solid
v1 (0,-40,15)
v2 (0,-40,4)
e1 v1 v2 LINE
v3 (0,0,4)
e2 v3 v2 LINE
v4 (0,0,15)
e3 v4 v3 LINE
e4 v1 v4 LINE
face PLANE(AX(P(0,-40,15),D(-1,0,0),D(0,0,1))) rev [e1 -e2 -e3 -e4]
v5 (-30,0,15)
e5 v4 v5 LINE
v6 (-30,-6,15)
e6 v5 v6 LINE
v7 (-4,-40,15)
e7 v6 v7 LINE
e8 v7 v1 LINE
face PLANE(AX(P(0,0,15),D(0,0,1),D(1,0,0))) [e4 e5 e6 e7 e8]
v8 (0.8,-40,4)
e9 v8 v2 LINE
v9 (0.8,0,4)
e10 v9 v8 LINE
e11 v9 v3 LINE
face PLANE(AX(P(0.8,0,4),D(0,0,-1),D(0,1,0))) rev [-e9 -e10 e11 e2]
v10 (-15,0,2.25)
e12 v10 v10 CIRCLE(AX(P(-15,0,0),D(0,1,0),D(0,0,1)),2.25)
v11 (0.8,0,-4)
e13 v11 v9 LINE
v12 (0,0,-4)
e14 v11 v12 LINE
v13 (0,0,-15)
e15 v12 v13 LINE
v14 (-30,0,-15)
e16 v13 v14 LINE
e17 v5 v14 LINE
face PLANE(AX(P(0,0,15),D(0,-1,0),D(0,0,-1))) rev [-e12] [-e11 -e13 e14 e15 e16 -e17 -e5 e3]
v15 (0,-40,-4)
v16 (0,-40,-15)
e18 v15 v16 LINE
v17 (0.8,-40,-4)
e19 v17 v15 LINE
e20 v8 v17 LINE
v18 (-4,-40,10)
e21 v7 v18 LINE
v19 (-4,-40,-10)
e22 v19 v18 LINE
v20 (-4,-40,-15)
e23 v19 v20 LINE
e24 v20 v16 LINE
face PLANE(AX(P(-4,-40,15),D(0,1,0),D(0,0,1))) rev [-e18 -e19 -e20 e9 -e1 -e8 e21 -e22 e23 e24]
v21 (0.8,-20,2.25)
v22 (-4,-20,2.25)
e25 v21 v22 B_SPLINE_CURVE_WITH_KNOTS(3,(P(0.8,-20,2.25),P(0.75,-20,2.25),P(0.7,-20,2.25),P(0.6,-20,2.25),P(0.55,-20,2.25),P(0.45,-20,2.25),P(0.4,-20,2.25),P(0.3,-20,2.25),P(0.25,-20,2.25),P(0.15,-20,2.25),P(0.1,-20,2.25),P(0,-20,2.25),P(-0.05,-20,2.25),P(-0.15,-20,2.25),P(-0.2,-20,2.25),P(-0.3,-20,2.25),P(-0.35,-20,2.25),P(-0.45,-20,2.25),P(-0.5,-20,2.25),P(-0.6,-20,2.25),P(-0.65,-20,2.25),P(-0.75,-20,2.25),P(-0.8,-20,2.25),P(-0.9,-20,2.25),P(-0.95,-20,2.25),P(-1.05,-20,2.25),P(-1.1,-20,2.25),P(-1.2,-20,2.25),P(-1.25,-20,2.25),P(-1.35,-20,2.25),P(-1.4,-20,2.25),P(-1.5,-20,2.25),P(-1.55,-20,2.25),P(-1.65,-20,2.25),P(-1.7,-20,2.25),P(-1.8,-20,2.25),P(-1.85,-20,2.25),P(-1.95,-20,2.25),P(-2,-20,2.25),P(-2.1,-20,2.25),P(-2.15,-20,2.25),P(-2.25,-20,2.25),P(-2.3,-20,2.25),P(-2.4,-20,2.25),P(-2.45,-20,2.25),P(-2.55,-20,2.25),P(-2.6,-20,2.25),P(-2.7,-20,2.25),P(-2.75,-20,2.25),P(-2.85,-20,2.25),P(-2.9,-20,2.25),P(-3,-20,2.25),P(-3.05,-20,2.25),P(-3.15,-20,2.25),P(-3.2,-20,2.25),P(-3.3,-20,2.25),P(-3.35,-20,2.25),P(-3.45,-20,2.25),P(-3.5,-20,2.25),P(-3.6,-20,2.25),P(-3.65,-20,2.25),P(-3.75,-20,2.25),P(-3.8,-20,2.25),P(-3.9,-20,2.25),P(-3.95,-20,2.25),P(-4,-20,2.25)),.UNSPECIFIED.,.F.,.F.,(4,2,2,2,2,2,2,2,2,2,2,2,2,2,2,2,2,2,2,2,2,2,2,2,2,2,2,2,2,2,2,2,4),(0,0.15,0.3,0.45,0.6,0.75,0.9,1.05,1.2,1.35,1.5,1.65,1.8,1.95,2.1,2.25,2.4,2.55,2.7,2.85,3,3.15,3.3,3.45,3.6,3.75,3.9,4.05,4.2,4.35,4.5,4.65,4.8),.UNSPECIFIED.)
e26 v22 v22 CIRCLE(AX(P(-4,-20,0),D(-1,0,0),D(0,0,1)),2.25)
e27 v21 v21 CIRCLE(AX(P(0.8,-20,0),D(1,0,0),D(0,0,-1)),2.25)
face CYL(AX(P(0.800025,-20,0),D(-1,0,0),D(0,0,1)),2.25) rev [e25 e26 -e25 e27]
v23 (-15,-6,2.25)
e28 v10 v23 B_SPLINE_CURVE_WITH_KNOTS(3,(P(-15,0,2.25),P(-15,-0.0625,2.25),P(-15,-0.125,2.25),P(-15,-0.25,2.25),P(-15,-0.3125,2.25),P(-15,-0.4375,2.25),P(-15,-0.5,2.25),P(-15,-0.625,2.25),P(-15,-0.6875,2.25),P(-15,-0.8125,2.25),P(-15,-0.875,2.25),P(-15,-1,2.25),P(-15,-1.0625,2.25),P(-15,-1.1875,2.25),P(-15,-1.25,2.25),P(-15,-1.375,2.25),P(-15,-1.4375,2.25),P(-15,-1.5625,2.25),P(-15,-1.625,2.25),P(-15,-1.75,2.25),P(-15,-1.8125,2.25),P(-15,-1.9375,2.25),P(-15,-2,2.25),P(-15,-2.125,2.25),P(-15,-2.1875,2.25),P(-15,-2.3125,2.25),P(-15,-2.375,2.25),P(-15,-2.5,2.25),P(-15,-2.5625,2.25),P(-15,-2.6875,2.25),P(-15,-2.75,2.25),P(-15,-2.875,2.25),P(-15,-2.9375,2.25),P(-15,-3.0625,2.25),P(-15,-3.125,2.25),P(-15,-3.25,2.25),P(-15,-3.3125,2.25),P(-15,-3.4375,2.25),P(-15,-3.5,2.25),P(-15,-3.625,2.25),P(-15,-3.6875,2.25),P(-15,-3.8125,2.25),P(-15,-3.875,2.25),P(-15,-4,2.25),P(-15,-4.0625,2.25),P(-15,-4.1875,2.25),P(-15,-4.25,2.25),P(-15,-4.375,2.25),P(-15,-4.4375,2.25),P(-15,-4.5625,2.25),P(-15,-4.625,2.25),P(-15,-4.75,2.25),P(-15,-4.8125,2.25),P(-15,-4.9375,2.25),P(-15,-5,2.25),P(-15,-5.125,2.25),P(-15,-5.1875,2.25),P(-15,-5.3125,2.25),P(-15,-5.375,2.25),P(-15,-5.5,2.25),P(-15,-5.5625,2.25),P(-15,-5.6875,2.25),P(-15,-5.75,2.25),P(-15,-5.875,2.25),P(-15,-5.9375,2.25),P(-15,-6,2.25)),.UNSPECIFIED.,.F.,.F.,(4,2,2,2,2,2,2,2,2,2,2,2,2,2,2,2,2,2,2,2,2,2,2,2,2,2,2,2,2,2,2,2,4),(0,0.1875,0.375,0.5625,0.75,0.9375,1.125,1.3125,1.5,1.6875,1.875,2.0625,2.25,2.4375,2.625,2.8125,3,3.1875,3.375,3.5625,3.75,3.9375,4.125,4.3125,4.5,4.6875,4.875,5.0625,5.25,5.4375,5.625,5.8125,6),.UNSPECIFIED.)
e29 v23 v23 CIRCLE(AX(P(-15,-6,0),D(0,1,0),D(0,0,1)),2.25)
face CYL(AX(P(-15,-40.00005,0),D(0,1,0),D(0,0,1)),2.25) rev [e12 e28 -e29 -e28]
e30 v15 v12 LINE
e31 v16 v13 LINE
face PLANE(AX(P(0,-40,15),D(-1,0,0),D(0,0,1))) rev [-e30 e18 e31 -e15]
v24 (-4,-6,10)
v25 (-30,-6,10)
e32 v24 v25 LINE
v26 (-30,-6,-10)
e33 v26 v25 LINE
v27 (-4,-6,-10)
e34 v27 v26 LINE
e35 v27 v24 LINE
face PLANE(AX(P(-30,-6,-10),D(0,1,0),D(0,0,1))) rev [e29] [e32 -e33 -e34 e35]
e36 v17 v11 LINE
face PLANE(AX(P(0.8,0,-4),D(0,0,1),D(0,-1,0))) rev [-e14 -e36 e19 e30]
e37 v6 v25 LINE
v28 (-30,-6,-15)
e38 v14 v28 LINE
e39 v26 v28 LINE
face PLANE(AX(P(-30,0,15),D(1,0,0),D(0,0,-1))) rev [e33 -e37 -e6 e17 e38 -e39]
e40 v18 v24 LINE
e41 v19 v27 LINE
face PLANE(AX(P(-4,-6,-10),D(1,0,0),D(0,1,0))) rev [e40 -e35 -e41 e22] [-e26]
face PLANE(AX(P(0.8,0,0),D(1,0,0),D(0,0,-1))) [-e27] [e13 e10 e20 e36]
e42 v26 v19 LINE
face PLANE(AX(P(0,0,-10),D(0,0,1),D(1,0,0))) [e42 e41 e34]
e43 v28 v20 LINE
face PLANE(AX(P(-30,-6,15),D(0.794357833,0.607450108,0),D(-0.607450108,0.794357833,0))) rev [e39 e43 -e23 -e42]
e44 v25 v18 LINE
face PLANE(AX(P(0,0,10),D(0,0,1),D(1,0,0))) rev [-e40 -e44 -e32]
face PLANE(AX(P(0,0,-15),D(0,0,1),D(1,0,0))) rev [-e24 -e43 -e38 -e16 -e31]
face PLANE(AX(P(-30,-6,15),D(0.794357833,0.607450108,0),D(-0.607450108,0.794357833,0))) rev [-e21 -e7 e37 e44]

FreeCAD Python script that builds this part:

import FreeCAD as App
import Part
import Sketcher

V = App.Vector

doc = App.newDocument("Part")
body = doc.addObject("PartDesign::Body", "Body")

sketch1 = body.newObject("Sketcher::SketchObject", "Sketch")
sketch1.AttachmentSupport = (doc.getObject("XY_Plane"), [""])
sketch1.MapMode = "FlatFace"
sketch1.addGeometry([
    Part.LineSegment(V(0, 0, 0), V(-30, 0, 0)),
    Part.LineSegment(V(-30, 0, 0), V(-30, -6, 0)),
    Part.LineSegment(V(-30, -6, 0), V(-4, -40, 0)),
    Part.LineSegment(V(-4, -40, 0), V(0, -40, 0)),
    Part.LineSegment(V(0, -40, 0), V(0, 0, 0)),
], False)
sketch1.addConstraint([
    Sketcher.Constraint("Coincident", 0, 2, 1, 1),
    Sketcher.Constraint("Coincident", 1, 2, 2, 1),
    Sketcher.Constraint("Coincident", 2, 2, 3, 1),
    Sketcher.Constraint("Coincident", 3, 2, 4, 1),
    Sketcher.Constraint("Coincident", 4, 2, 0, 1),
    Sketcher.Constraint("Horizontal", 0),
    Sketcher.Constraint("Vertical", 1),
    Sketcher.Constraint("Horizontal", 3),
    Sketcher.Constraint("Vertical", 4),
    Sketcher.Constraint("Coincident", 4, 2, -1, 1),
    Sketcher.Constraint("DistanceX", 0, 2, 0, 1, 30.0),
    Sketcher.Constraint("DistanceX", 3, 1, 3, 2, 4.0),
    Sketcher.Constraint("DistanceY", 1, 2, 1, 1, 6.0),
    Sketcher.Constraint("DistanceY", 4, 1, 4, 2, 40.0),
])
pad1 = body.newObject("PartDesign::Pad", "Pad")
pad1.Profile = sketch1
pad1.Length = 30
pad1.Midplane = True

sketch2 = body.newObject("Sketcher::SketchObject", "Sketch001")
sketch2.AttachmentSupport = (doc.getObject("YZ_Plane"), [""])
sketch2.MapMode = "FlatFace"
sketch2.addGeometry([
    Part.LineSegment(V(0, 4, 0), V(-40, 4, 0)),
    Part.LineSegment(V(-40, 4, 0), V(-40, -4, 0)),
    Part.LineSegment(V(-40, -4, 0), V(0, -4, 0)),
    Part.LineSegment(V(0, -4, 0), V(0, 4, 0)),
], False)
sketch2.addConstraint([
    Sketcher.Constraint("Coincident", 0, 2, 1, 1),
    Sketcher.Constraint("Coincident", 1, 2, 2, 1),
    Sketcher.Constraint("Coincident", 2, 2, 3, 1),
    Sketcher.Constraint("Coincident", 3, 2, 0, 1),
    Sketcher.Constraint("Horizontal", 0),
    Sketcher.Constraint("Vertical", 1),
    Sketcher.Constraint("Horizontal", 2),
    Sketcher.Constraint("Vertical", 3),
    Sketcher.Constraint("Symmetric", 2, 2, 3, 2, -1, 1),
    Sketcher.Constraint("DistanceX", 0, 2, 0, 1, 40.0),
    Sketcher.Constraint("DistanceY", 1, 2, 1, 1, 8.0),
])
pad2 = body.newObject("PartDesign::Pad", "Pad001")
pad2.Profile = sketch2
pad2.Length = 0.8

sketch3 = body.newObject("Sketcher::SketchObject", "Sketch002")
sketch3.AttachmentSupport = (doc.getObject("XY_Plane"), [""])
sketch3.MapMode = "FlatFace"
sketch3.addGeometry([
    Part.LineSegment(V(-30, -6, 0), V(-30, -40, 0)),
    Part.LineSegment(V(-30, -40, 0), V(-4, -40, 0)),
    Part.LineSegment(V(-4, -40, 0), V(-4, -6, 0)),
    Part.LineSegment(V(-4, -6, 0), V(-30, -6, 0)),
], False)
sketch3.addConstraint([
    Sketcher.Constraint("Coincident", 0, 2, 1, 1),
    Sketcher.Constraint("Coincident", 1, 2, 2, 1),
    Sketcher.Constraint("Coincident", 2, 2, 3, 1),
    Sketcher.Constraint("Coincident", 3, 2, 0, 1),
    Sketcher.Constraint("Vertical", 0),
    Sketcher.Constraint("Horizontal", 1),
    Sketcher.Constraint("Vertical", 2),
    Sketcher.Constraint("Horizontal", 3),
    Sketcher.Constraint("DistanceX", 1, 1, 1, 2, 26.0),
    Sketcher.Constraint("DistanceY", 0, 2, 0, 1, 34.0),
    Sketcher.Constraint("DistanceX", 0, 2, -1, 1, 30.0),
    Sketcher.Constraint("DistanceY", 0, 2, -1, 1, 40.0),
])
pocket1 = body.newObject("PartDesign::Pocket", "Pocket")
pocket1.Profile = sketch3
pocket1.Length = 20
pocket1.Midplane = True

sketch4 = body.newObject("Sketcher::SketchObject", "Sketch003")
sketch4.AttachmentSupport = (doc.getObject("YZ_Plane"), [""])
sketch4.MapMode = "FlatFace"
sketch4.AttachmentOffset = App.Placement(V(0, 0, -4), App.Rotation())
sketch4.addGeometry(Part.Circle(V(-20, 0, 0), V(0, 0, 1), 2.2), False)
sketch4.addConstraint([
    Sketcher.Constraint("PointOnObject", 0, 3, -1),
    Sketcher.Constraint("Diameter", 0, 4.5),
    Sketcher.Constraint("DistanceX", 0, 3, -1, 1, 20.0),
])
pocket2 = body.newObject("PartDesign::Pocket", "Pocket001")
pocket2.Profile = sketch4
pocket2.Type = "ThroughAll"
pocket2.Reversed = True

sketch5 = body.newObject("Sketcher::SketchObject", "Sketch004")
sketch5.AttachmentSupport = (doc.getObject("XZ_Plane"), [""])
sketch5.MapMode = "FlatFace"
sketch5.addGeometry(Part.Circle(V(-15, 0, 0), V(0, 0, 1), 2.2), False)
sketch5.addConstraint([
    Sketcher.Constraint("PointOnObject", 0, 3, -1),
    Sketcher.Constraint("Diameter", 0, 4.5),
    Sketcher.Constraint("DistanceX", 0, 3, -1, 1, 15.0),
])
pocket3 = body.newObject("PartDesign::Pocket", "Pocket002")
pocket3.Profile = sketch5
pocket3.Type = "ThroughAll"
pocket3.Reversed = True

doc.recompute()
